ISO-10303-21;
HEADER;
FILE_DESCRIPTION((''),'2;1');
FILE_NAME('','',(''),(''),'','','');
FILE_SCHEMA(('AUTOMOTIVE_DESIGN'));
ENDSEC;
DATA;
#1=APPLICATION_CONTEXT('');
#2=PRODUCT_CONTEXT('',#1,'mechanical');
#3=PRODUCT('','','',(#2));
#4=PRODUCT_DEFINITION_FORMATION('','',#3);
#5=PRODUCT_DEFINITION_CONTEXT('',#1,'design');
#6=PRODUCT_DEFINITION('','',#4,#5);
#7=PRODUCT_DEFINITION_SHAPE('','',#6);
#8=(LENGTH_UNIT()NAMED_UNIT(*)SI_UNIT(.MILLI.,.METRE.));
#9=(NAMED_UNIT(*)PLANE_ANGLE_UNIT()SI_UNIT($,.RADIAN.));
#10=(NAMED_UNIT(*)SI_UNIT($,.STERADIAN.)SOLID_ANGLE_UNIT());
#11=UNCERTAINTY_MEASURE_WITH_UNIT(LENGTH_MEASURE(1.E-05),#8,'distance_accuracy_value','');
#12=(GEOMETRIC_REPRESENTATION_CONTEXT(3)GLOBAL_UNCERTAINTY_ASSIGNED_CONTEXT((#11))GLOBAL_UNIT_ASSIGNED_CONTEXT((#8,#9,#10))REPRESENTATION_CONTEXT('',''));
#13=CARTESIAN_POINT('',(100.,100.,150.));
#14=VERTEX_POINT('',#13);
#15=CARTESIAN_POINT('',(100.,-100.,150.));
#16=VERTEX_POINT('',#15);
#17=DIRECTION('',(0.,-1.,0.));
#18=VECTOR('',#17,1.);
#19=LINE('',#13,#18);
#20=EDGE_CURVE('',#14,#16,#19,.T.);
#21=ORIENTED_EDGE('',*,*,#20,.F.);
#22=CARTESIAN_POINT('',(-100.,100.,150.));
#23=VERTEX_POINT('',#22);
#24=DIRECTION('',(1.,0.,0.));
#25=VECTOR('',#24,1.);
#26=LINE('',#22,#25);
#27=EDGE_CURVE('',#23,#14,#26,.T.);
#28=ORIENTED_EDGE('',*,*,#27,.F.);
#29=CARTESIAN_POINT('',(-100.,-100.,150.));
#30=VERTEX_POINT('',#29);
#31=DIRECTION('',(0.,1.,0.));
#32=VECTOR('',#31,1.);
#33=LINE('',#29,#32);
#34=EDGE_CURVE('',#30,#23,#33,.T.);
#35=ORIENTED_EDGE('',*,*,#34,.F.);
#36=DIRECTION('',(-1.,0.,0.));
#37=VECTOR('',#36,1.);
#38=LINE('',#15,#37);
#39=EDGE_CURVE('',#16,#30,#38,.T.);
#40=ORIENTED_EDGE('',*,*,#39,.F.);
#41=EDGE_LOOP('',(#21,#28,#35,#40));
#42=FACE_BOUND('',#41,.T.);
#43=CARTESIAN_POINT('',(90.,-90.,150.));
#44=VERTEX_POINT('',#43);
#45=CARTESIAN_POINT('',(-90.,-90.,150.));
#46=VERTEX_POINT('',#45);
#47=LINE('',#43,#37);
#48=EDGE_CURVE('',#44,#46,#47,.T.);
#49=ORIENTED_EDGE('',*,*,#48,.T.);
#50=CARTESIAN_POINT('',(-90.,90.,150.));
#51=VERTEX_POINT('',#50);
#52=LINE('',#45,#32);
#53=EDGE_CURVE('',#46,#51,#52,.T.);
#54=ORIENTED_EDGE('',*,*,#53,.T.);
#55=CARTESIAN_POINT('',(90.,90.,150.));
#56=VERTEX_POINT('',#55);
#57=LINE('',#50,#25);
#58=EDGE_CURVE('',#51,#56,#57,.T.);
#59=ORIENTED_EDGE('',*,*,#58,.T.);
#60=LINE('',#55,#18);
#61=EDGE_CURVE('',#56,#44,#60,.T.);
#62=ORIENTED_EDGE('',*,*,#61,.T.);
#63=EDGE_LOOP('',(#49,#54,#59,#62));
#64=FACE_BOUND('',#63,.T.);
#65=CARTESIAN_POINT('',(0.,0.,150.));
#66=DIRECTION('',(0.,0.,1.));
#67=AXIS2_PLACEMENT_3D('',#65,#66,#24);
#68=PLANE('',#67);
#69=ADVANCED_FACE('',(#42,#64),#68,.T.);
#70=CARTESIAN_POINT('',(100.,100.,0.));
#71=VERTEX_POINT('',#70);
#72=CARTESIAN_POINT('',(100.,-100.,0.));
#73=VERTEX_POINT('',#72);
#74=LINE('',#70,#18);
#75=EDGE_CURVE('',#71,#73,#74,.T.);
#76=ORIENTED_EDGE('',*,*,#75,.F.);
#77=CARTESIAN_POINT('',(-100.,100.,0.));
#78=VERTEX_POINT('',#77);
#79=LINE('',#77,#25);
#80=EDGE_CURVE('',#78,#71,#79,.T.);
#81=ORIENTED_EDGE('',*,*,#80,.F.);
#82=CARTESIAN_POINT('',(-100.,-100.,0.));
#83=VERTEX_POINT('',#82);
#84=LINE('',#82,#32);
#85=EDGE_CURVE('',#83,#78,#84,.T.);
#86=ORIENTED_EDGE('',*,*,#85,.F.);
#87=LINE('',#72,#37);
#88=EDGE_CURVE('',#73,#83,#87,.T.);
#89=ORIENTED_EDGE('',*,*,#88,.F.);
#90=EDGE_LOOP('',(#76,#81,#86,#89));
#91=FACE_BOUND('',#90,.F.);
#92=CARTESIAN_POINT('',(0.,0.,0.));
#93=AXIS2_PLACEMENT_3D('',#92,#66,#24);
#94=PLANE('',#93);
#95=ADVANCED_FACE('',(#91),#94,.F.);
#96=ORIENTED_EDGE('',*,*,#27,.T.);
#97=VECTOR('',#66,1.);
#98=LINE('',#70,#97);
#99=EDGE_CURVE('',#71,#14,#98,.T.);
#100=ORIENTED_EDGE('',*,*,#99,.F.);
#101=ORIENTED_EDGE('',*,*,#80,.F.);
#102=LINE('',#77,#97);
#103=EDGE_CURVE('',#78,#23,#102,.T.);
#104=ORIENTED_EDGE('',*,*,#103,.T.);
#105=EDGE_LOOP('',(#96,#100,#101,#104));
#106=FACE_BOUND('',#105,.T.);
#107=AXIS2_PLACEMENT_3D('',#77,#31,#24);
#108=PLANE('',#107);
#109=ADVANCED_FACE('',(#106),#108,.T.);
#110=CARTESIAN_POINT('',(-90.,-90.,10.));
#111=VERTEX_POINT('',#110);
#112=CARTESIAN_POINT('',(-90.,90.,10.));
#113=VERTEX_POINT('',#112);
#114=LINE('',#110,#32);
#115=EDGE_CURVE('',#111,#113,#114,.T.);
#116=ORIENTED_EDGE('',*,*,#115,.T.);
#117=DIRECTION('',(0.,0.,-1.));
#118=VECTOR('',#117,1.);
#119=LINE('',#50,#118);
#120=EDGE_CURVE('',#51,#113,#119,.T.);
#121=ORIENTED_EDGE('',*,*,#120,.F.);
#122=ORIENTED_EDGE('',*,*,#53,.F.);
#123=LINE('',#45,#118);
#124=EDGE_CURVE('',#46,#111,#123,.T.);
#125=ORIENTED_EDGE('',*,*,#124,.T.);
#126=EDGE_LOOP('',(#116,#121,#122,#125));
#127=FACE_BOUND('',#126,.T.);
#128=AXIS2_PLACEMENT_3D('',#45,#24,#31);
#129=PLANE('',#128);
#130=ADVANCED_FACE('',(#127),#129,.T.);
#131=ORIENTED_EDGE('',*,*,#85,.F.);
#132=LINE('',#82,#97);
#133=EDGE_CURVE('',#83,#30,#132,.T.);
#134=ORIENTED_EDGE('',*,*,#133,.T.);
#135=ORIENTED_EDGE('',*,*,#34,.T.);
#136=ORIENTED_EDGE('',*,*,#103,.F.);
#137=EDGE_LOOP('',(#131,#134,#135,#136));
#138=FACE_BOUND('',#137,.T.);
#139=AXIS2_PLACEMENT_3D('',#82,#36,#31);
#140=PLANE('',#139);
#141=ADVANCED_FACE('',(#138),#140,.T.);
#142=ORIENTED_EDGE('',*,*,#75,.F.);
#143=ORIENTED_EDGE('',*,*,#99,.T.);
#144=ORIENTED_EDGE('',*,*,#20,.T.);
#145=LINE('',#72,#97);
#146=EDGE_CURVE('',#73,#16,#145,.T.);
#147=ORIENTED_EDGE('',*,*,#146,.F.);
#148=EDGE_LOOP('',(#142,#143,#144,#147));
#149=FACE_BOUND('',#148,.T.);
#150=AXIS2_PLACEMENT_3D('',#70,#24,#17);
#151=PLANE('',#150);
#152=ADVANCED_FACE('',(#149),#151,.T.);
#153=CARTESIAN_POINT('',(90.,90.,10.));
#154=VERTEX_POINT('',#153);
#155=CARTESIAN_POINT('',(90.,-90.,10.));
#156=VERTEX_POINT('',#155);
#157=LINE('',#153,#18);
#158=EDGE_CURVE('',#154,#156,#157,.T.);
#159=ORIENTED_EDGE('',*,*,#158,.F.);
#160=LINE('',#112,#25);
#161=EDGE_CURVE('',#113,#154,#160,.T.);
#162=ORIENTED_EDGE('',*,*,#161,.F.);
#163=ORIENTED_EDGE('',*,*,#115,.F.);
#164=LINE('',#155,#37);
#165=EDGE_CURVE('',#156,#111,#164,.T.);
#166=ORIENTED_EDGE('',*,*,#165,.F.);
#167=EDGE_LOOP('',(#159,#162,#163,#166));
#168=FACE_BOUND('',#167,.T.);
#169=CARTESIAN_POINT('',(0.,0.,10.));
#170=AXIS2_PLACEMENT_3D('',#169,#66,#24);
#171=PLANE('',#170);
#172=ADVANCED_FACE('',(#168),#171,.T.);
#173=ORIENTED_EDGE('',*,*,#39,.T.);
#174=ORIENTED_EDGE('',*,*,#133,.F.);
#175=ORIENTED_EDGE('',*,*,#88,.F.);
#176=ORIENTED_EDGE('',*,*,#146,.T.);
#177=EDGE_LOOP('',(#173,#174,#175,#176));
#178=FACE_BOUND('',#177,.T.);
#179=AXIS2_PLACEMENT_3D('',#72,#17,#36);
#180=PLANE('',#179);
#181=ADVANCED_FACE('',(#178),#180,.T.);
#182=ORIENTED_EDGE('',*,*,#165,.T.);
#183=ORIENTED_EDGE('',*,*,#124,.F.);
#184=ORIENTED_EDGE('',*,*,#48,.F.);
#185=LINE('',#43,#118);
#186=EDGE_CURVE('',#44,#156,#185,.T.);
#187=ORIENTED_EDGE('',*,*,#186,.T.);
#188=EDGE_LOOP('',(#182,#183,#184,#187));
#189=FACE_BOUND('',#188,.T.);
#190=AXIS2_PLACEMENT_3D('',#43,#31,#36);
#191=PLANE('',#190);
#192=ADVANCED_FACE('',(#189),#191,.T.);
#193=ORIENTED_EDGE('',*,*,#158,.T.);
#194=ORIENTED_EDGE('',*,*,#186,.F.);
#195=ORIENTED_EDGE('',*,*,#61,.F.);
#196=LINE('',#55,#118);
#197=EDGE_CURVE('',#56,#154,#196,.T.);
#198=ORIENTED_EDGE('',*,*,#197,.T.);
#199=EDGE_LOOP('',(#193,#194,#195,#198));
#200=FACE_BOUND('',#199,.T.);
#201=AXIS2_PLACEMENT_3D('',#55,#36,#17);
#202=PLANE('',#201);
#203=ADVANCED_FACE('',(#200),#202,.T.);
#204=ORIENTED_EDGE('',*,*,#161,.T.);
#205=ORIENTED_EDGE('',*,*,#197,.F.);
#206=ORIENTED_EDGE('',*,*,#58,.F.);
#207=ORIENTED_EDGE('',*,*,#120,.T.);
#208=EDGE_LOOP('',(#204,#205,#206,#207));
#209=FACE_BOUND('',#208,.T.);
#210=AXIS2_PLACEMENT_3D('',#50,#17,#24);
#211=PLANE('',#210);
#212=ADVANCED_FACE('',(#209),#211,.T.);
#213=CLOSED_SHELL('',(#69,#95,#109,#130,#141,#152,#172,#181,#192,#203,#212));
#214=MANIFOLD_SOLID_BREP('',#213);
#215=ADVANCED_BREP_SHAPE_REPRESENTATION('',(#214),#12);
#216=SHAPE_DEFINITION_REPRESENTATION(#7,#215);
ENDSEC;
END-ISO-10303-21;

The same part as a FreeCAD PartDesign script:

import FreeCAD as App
import Part
import Sketcher
from FreeCAD import Vector


def add_polygon(sketch, points):
    """Adds a closed chain of lines whose ends are joined by coincident constraints."""
    first, n = sketch.GeometryCount, len(points)
    for a, b in zip(points, points[1:] + points[:1]):
        sketch.addGeometry(Part.LineSegment(App.Vector(*a, 0), App.Vector(*b, 0)), False)
    for i in range(n):
        sketch.addConstraint(Sketcher.Constraint("Coincident", first + i, 2, first + (i + 1) % n, 1))

doc = App.newDocument("Part")
body = doc.addObject("PartDesign::Body", "Body")

# Sketch on XY plane
sketch1 = body.newObject("Sketcher::SketchObject", "Sketch")
sketch1.AttachmentSupport = (doc.getObject("XY_Plane"), [""])
sketch1.MapMode = "FlatFace"
add_polygon(sketch1, [(100, 100), (-100, 100), (-100, -100), (100, -100)])  # lines 0-3
sketch1.addConstraint(Sketcher.Constraint("Horizontal", 0))
sketch1.addConstraint(Sketcher.Constraint("Vertical", 1))
sketch1.addConstraint(Sketcher.Constraint("Horizontal", 2))
sketch1.addConstraint(Sketcher.Constraint("Vertical", 3))
sketch1.addConstraint(Sketcher.Constraint("Symmetric", 0, 2, 2, 2, -1, 1))
sketch1.addConstraint(Sketcher.Constraint("Equal", 2, 1))
sketch1.addConstraint(Sketcher.Constraint("DistanceX", 0, 2, 0, 1, 200.0))
pad1 = body.newObject("PartDesign::Pad", "Pad")
pad1.Profile = sketch1
pad1.Length = 150

# Sketch on XY plane
sketch2 = body.newObject("Sketcher::SketchObject", "Sketch001")
sketch2.AttachmentSupport = (doc.getObject("XY_Plane"), [""])
sketch2.MapMode = "FlatFace"
sketch2.AttachmentOffset = App.Placement(Vector(0, 0, 150), App.Rotation())
add_polygon(sketch2, [(90, 90), (-90, 90), (-90, -90), (90, -90)])  # lines 0-3
sketch2.addConstraint(Sketcher.Constraint("Horizontal", 0))
sketch2.addConstraint(Sketcher.Constraint("Vertical", 1))
sketch2.addConstraint(Sketcher.Constraint("Horizontal", 2))
sketch2.addConstraint(Sketcher.Constraint("Vertical", 3))
sketch2.addConstraint(Sketcher.Constraint("Symmetric", 0, 2, 2, 2, -1, 1))
sketch2.addConstraint(Sketcher.Constraint("Equal", 2, 1))
sketch2.addConstraint(Sketcher.Constraint("DistanceX", 0, 2, 0, 1, 180.0))
pocket1 = body.newObject("PartDesign::Pocket", "Pocket")
pocket1.Profile = sketch2
pocket1.Length = 140

doc.recompute()
